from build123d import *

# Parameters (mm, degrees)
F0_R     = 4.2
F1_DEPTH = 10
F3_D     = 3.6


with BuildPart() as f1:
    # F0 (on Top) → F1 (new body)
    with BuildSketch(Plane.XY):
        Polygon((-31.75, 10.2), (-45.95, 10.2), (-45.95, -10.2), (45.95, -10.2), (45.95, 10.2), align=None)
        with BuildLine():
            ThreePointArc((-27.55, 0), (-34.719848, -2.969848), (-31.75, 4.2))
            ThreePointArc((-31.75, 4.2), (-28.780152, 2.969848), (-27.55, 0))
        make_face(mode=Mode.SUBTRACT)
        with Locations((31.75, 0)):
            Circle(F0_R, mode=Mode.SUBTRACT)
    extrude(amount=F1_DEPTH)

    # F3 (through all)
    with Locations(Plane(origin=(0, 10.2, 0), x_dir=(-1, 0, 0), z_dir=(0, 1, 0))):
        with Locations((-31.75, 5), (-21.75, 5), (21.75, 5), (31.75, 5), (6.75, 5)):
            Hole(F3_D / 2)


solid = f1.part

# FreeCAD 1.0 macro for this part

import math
import FreeCAD as App
import Part
import Sketcher

V = App.Vector


def add_polygon(sketch, points):
    """Adds a closed chain of lines whose ends are joined by coincident constraints."""
    first, n = sketch.GeometryCount, len(points)
    for a, b in zip(points, points[1:] + points[:1]):
        sketch.addGeometry(Part.LineSegment(App.Vector(*a, 0), App.Vector(*b, 0)), False)
    for i in range(n):
        sketch.addConstraint(Sketcher.Constraint("Coincident", first + i, 2, first + (i + 1) % n, 1))

doc = App.newDocument("Part")
body = doc.addObject("PartDesign::Body", "Body")

sketch1 = doc.addObject("Sketcher::SketchObject", "Sketch")
body.addObject(sketch1)
sketch1.AttachmentSupport = (doc.XY_Plane, [""])
sketch1.MapMode = "FlatFace"
add_polygon(sketch1, [(-45.95, 10.2), (-45.95, -10.2), (45.95, -10.2), (45.95, 10.2)])
sketch1.addGeometry(Part.ArcOfCircle(Part.Circle(V(-31.750002, -0.000002, 0), V(0, 0, 1), 4.200002), math.radians(0.000022), math.radians(89.999978)), False)
sketch1.addGeometry(Part.ArcOfCircle(Part.Circle(V(-31.75, 0, 0), V(0, 0, 1), 4.2), math.radians(90.000004), math.radians(359.999996)), False)
sketch1.addGeometry(Part.Circle(V(31.75, 0, 0), V(0, 0, 1), 4.2), False)
sketch1.addConstraint([
    Sketcher.Constraint("Tangent", 4, 1, 5, 2),
    Sketcher.Constraint("Coincident", 5, 1, 4, 2),
    Sketcher.Constraint("Vertical", 0),
    Sketcher.Constraint("Horizontal", 1),
    Sketcher.Constraint("Vertical", 2),
    Sketcher.Constraint("Horizontal", 3),
    Sketcher.Constraint("Equal", 5, 6),
    Sketcher.Constraint("Symmetric", 4, 3, 6, 3, -1, 1),
    Sketcher.Constraint("Symmetric", 0, 2, 2, 2, -1, 1),
    Sketcher.Constraint("PointOnObject", 4, 3, -1),
    Sketcher.Constraint("PointOnObject", 4, 1, -1),
    Sketcher.Constraint("Vertical", 4, 3, 5, 1),
    Sketcher.Constraint("Diameter", 6, 8.4),
    Sketcher.Constraint("DistanceX", 1, 1, 1, 2, 91.9),
    Sketcher.Constraint("DistanceY", 0, 2, 0, 1, 20.4),
    Sketcher.Constraint("DistanceX", 5, 3, 6, 3, 63.5),
])
pad1 = doc.addObject("PartDesign::Pad", "Pad")
body.addObject(pad1)
pad1.Profile = sketch1
pad1.Length = 10

sketch2 = doc.addObject("Sketcher::SketchObject", "Sketch001")
body.addObject(sketch2)
sketch2.AttachmentSupport = (doc.XZ_Plane, [""])
sketch2.MapMode = "FlatFace"
sketch2.AttachmentOffset = App.Placement(V(0, 0, -10.2), App.Rotation())
sketch2.addGeometry([
    Part.Circle(V(31.75, 5, 0), V(0, 0, 1), 1.8),
    Part.Circle(V(21.75, 5, 0), V(0, 0, 1), 1.8),
    Part.Circle(V(-21.75, 5, 0), V(0, 0, 1), 1.8),
    Part.Circle(V(-31.75, 5, 0), V(0, 0, 1), 1.8),
    Part.Circle(V(-6.75, 5, 0), V(0, 0, 1), 1.8),
], False)
sketch2.addConstraint([
    Sketcher.Constraint("Equal", 0, 1),
    Sketcher.Constraint("Equal", 1, 2),
    Sketcher.Constraint("Equal", 2, 3),
    Sketcher.Constraint("Equal", 3, 4),
    Sketcher.Constraint("Symmetric", 1, 3, 2, 3, -2),
    Sketcher.Constraint("Symmetric", 0, 3, 3, 3, -2),
    Sketcher.Constraint("Horizontal", 0, 3, 1, 3),
    Sketcher.Constraint("Horizontal", 3, 3, 4, 3),
    Sketcher.Constraint("Diameter", 0, 3.6),
    Sketcher.Constraint("DistanceY", -1, 1, 0, 3, 5.0),
    Sketcher.Constraint("DistanceX", 1, 3, 0, 3, 10.0),
    Sketcher.Constraint("DistanceX", 2, 3, 4, 3, 15.0),
    Sketcher.Constraint("DistanceX", 2, 3, 1, 3, 43.5),
])
doc.recompute()
hole = doc.addObject("PartDesign::Hole", "Hole")
body.addObject(hole)
hole.Profile = sketch2
hole.ThreadType = "None"
hole.Diameter = 3.6
hole.DepthType = "ThroughAll"
hole.Reversed = True

doc.recompute()
